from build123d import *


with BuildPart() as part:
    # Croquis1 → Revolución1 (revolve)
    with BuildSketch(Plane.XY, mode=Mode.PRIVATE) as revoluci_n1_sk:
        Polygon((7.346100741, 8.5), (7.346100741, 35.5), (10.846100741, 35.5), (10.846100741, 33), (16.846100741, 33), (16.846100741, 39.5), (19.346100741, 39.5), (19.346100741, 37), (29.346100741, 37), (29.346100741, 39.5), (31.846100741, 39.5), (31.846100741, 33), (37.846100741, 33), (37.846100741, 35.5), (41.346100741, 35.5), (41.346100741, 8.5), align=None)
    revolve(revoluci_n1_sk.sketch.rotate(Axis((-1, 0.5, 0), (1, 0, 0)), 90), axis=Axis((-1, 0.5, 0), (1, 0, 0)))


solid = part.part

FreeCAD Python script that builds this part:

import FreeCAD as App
import Part
import Sketcher

doc = App.newDocument("Part")
body = doc.addObject("PartDesign::Body", "Body")

sketch1 = doc.addObject("Sketcher::SketchObject", "Sketch")
body.addObject(sketch1)
sketch1.AttachmentSupport = (doc.XY_Plane, [""])
sketch1.MapMode = "FlatFace"
sketch1.addGeometry(Part.LineSegment(App.Vector(7.3, 35.5, 0), App.Vector(7.3, 8.5, 0)), False)
sketch1.addGeometry(Part.LineSegment(App.Vector(7.3, 8.5, 0), App.Vector(41.3, 8.5, 0)), False)
sketch1.addGeometry(Part.LineSegment(App.Vector(41.3, 8.5, 0), App.Vector(41.3, 35.5, 0)), False)
sketch1.addGeometry(Part.LineSegment(App.Vector(41.3, 35.5, 0), App.Vector(37.8, 35.5, 0)), False)
sketch1.addGeometry(Part.LineSegment(App.Vector(37.8, 35.5, 0), App.Vector(37.8, 33, 0)), False)
sketch1.addGeometry(Part.LineSegment(App.Vector(37.8, 33, 0), App.Vector(31.8, 33, 0)), False)
sketch1.addGeometry(Part.LineSegment(App.Vector(31.8, 33, 0), App.Vector(31.8, 39.5, 0)), False)
sketch1.addGeometry(Part.LineSegment(App.Vector(31.8, 39.5, 0), App.Vector(29.3, 39.5, 0)), False)
sketch1.addGeometry(Part.LineSegment(App.Vector(29.3, 39.5, 0), App.Vector(29.3, 37, 0)), False)
sketch1.addGeometry(Part.LineSegment(App.Vector(29.3, 37, 0), App.Vector(19.3, 37, 0)), False)
sketch1.addGeometry(Part.LineSegment(App.Vector(19.3, 37, 0), App.Vector(19.3, 39.5, 0)), False)
sketch1.addGeometry(Part.LineSegment(App.Vector(19.3, 39.5, 0), App.Vector(16.8, 39.5, 0)), False)
sketch1.addGeometry(Part.LineSegment(App.Vector(16.8, 39.5, 0), App.Vector(16.8, 33, 0)), False)
sketch1.addGeometry(Part.LineSegment(App.Vector(16.8, 33, 0), App.Vector(10.8, 33, 0)), False)
sketch1.addGeometry(Part.LineSegment(App.Vector(10.8, 33, 0), App.Vector(10.8, 35.5, 0)), False)
sketch1.addGeometry(Part.LineSegment(App.Vector(10.8, 35.5, 0), App.Vector(7.3, 35.5, 0)), False)
sketch1.addGeometry(Part.LineSegment(App.Vector(7.3, 0.5, 0), App.Vector(41.3, 0.5, 0)), True)
sketch1.addConstraint(Sketcher.Constraint("Coincident", 0, 2, 1, 1))
sketch1.addConstraint(Sketcher.Constraint("Coincident", 1, 2, 2, 1))
sketch1.addConstraint(Sketcher.Constraint("Coincident", 2, 2, 3, 1))
sketch1.addConstraint(Sketcher.Constraint("Coincident", 3, 2, 4, 1))
sketch1.addConstraint(Sketcher.Constraint("Coincident", 4, 2, 5, 1))
sketch1.addConstraint(Sketcher.Constraint("Coincident", 5, 2, 6, 1))
sketch1.addConstraint(Sketcher.Constraint("Coincident", 6, 2, 7, 1))
sketch1.addConstraint(Sketcher.Constraint("Coincident", 7, 2, 8, 1))
sketch1.addConstraint(Sketcher.Constraint("Coincident", 8, 2, 9, 1))
sketch1.addConstraint(Sketcher.Constraint("Coincident", 9, 2, 10, 1))
sketch1.addConstraint(Sketcher.Constraint("Coincident", 10, 2, 11, 1))
sketch1.addConstraint(Sketcher.Constraint("Coincident", 11, 2, 12, 1))
sketch1.addConstraint(Sketcher.Constraint("Coincident", 12, 2, 13, 1))
sketch1.addConstraint(Sketcher.Constraint("Coincident", 13, 2, 14, 1))
sketch1.addConstraint(Sketcher.Constraint("Coincident", 14, 2, 15, 1))
sketch1.addConstraint(Sketcher.Constraint("Coincident", 15, 2, 0, 1))
sketch1.addConstraint(Sketcher.Constraint("Vertical", 0))
sketch1.addConstraint(Sketcher.Constraint("Horizontal", 1))
sketch1.addConstraint(Sketcher.Constraint("Vertical", 2))
sketch1.addConstraint(Sketcher.Constraint("Horizontal", 3))
sketch1.addConstraint(Sketcher.Constraint("Vertical", 4))
sketch1.addConstraint(Sketcher.Constraint("Horizontal", 5))
sketch1.addConstraint(Sketcher.Constraint("Vertical", 6))
sketch1.addConstraint(Sketcher.Constraint("Horizontal", 7))
sketch1.addConstraint(Sketcher.Constraint("Vertical", 8))
sketch1.addConstraint(Sketcher.Constraint("Horizontal", 9))
sketch1.addConstraint(Sketcher.Constraint("Vertical", 10))
sketch1.addConstraint(Sketcher.Constraint("Horizontal", 11))
sketch1.addConstraint(Sketcher.Constraint("Vertical", 12))
sketch1.addConstraint(Sketcher.Constraint("Horizontal", 13))
sketch1.addConstraint(Sketcher.Constraint("Vertical", 14))
sketch1.addConstraint(Sketcher.Constraint("Horizontal", 15))
sketch1.addConstraint(Sketcher.Constraint("Horizontal", 16))
sketch1.addConstraint(Sketcher.Constraint("Horizontal", 7, 2, 10, 2))
sketch1.addConstraint(Sketcher.Constraint("Horizontal", 5, 2, 12, 2))
sketch1.addConstraint(Sketcher.Constraint("Horizontal", 3, 2, 14, 2))
sketch1.addConstraint(Sketcher.Constraint("Vertical", 15, 2, 16, 1))
sketch1.addConstraint(Sketcher.Constraint("Vertical", 2, 2, 16, 2))
sketch1.addConstraint(Sketcher.Constraint("Equal", 7, 11))
sketch1.addConstraint(Sketcher.Constraint("Equal", 5, 13))
sketch1.addConstraint(Sketcher.Constraint("Equal", 3, 15))
sketch1.addConstraint(Sketcher.Constraint("Equal", 11, 4))
sketch1.addConstraint(Sketcher.Constraint("Equal", 4, 8))
sketch1.addConstraint(Sketcher.Constraint("DistanceX", 1, 1, 1, 2, 34.0))
sketch1.addConstraint(Sketcher.Constraint("DistanceX", 5, 2, 5, 1, 6.0))
sketch1.addConstraint(Sketcher.Constraint("DistanceX", 9, 2, 9, 1, 10.0))
sketch1.addConstraint(Sketcher.Constraint("DistanceY", 0, 2, 0, 1, 27.0))
sketch1.addConstraint(Sketcher.Constraint("DistanceX", 3, 2, 3, 1, 3.5))
sketch1.addConstraint(Sketcher.Constraint("DistanceY", 6, 1, 6, 2, 6.5))
sketch1.addConstraint(Sketcher.Constraint("DistanceY", -1, 1, 4, 2, 33.0))
sketch1.addConstraint(Sketcher.Constraint("DistanceY", 16, 1, 0, 2, 8.0))
sketch1.addConstraint(Sketcher.Constraint("DistanceX", -1, 1, 0, 2, 7.346101))
revolution = doc.addObject("PartDesign::Revolution", "Revolution")
body.addObject(revolution)
revolution.Profile = sketch1
revolution.ReferenceAxis = (sketch1, ["Axis0"])
revolution.Angle = 360

doc.recompute()
